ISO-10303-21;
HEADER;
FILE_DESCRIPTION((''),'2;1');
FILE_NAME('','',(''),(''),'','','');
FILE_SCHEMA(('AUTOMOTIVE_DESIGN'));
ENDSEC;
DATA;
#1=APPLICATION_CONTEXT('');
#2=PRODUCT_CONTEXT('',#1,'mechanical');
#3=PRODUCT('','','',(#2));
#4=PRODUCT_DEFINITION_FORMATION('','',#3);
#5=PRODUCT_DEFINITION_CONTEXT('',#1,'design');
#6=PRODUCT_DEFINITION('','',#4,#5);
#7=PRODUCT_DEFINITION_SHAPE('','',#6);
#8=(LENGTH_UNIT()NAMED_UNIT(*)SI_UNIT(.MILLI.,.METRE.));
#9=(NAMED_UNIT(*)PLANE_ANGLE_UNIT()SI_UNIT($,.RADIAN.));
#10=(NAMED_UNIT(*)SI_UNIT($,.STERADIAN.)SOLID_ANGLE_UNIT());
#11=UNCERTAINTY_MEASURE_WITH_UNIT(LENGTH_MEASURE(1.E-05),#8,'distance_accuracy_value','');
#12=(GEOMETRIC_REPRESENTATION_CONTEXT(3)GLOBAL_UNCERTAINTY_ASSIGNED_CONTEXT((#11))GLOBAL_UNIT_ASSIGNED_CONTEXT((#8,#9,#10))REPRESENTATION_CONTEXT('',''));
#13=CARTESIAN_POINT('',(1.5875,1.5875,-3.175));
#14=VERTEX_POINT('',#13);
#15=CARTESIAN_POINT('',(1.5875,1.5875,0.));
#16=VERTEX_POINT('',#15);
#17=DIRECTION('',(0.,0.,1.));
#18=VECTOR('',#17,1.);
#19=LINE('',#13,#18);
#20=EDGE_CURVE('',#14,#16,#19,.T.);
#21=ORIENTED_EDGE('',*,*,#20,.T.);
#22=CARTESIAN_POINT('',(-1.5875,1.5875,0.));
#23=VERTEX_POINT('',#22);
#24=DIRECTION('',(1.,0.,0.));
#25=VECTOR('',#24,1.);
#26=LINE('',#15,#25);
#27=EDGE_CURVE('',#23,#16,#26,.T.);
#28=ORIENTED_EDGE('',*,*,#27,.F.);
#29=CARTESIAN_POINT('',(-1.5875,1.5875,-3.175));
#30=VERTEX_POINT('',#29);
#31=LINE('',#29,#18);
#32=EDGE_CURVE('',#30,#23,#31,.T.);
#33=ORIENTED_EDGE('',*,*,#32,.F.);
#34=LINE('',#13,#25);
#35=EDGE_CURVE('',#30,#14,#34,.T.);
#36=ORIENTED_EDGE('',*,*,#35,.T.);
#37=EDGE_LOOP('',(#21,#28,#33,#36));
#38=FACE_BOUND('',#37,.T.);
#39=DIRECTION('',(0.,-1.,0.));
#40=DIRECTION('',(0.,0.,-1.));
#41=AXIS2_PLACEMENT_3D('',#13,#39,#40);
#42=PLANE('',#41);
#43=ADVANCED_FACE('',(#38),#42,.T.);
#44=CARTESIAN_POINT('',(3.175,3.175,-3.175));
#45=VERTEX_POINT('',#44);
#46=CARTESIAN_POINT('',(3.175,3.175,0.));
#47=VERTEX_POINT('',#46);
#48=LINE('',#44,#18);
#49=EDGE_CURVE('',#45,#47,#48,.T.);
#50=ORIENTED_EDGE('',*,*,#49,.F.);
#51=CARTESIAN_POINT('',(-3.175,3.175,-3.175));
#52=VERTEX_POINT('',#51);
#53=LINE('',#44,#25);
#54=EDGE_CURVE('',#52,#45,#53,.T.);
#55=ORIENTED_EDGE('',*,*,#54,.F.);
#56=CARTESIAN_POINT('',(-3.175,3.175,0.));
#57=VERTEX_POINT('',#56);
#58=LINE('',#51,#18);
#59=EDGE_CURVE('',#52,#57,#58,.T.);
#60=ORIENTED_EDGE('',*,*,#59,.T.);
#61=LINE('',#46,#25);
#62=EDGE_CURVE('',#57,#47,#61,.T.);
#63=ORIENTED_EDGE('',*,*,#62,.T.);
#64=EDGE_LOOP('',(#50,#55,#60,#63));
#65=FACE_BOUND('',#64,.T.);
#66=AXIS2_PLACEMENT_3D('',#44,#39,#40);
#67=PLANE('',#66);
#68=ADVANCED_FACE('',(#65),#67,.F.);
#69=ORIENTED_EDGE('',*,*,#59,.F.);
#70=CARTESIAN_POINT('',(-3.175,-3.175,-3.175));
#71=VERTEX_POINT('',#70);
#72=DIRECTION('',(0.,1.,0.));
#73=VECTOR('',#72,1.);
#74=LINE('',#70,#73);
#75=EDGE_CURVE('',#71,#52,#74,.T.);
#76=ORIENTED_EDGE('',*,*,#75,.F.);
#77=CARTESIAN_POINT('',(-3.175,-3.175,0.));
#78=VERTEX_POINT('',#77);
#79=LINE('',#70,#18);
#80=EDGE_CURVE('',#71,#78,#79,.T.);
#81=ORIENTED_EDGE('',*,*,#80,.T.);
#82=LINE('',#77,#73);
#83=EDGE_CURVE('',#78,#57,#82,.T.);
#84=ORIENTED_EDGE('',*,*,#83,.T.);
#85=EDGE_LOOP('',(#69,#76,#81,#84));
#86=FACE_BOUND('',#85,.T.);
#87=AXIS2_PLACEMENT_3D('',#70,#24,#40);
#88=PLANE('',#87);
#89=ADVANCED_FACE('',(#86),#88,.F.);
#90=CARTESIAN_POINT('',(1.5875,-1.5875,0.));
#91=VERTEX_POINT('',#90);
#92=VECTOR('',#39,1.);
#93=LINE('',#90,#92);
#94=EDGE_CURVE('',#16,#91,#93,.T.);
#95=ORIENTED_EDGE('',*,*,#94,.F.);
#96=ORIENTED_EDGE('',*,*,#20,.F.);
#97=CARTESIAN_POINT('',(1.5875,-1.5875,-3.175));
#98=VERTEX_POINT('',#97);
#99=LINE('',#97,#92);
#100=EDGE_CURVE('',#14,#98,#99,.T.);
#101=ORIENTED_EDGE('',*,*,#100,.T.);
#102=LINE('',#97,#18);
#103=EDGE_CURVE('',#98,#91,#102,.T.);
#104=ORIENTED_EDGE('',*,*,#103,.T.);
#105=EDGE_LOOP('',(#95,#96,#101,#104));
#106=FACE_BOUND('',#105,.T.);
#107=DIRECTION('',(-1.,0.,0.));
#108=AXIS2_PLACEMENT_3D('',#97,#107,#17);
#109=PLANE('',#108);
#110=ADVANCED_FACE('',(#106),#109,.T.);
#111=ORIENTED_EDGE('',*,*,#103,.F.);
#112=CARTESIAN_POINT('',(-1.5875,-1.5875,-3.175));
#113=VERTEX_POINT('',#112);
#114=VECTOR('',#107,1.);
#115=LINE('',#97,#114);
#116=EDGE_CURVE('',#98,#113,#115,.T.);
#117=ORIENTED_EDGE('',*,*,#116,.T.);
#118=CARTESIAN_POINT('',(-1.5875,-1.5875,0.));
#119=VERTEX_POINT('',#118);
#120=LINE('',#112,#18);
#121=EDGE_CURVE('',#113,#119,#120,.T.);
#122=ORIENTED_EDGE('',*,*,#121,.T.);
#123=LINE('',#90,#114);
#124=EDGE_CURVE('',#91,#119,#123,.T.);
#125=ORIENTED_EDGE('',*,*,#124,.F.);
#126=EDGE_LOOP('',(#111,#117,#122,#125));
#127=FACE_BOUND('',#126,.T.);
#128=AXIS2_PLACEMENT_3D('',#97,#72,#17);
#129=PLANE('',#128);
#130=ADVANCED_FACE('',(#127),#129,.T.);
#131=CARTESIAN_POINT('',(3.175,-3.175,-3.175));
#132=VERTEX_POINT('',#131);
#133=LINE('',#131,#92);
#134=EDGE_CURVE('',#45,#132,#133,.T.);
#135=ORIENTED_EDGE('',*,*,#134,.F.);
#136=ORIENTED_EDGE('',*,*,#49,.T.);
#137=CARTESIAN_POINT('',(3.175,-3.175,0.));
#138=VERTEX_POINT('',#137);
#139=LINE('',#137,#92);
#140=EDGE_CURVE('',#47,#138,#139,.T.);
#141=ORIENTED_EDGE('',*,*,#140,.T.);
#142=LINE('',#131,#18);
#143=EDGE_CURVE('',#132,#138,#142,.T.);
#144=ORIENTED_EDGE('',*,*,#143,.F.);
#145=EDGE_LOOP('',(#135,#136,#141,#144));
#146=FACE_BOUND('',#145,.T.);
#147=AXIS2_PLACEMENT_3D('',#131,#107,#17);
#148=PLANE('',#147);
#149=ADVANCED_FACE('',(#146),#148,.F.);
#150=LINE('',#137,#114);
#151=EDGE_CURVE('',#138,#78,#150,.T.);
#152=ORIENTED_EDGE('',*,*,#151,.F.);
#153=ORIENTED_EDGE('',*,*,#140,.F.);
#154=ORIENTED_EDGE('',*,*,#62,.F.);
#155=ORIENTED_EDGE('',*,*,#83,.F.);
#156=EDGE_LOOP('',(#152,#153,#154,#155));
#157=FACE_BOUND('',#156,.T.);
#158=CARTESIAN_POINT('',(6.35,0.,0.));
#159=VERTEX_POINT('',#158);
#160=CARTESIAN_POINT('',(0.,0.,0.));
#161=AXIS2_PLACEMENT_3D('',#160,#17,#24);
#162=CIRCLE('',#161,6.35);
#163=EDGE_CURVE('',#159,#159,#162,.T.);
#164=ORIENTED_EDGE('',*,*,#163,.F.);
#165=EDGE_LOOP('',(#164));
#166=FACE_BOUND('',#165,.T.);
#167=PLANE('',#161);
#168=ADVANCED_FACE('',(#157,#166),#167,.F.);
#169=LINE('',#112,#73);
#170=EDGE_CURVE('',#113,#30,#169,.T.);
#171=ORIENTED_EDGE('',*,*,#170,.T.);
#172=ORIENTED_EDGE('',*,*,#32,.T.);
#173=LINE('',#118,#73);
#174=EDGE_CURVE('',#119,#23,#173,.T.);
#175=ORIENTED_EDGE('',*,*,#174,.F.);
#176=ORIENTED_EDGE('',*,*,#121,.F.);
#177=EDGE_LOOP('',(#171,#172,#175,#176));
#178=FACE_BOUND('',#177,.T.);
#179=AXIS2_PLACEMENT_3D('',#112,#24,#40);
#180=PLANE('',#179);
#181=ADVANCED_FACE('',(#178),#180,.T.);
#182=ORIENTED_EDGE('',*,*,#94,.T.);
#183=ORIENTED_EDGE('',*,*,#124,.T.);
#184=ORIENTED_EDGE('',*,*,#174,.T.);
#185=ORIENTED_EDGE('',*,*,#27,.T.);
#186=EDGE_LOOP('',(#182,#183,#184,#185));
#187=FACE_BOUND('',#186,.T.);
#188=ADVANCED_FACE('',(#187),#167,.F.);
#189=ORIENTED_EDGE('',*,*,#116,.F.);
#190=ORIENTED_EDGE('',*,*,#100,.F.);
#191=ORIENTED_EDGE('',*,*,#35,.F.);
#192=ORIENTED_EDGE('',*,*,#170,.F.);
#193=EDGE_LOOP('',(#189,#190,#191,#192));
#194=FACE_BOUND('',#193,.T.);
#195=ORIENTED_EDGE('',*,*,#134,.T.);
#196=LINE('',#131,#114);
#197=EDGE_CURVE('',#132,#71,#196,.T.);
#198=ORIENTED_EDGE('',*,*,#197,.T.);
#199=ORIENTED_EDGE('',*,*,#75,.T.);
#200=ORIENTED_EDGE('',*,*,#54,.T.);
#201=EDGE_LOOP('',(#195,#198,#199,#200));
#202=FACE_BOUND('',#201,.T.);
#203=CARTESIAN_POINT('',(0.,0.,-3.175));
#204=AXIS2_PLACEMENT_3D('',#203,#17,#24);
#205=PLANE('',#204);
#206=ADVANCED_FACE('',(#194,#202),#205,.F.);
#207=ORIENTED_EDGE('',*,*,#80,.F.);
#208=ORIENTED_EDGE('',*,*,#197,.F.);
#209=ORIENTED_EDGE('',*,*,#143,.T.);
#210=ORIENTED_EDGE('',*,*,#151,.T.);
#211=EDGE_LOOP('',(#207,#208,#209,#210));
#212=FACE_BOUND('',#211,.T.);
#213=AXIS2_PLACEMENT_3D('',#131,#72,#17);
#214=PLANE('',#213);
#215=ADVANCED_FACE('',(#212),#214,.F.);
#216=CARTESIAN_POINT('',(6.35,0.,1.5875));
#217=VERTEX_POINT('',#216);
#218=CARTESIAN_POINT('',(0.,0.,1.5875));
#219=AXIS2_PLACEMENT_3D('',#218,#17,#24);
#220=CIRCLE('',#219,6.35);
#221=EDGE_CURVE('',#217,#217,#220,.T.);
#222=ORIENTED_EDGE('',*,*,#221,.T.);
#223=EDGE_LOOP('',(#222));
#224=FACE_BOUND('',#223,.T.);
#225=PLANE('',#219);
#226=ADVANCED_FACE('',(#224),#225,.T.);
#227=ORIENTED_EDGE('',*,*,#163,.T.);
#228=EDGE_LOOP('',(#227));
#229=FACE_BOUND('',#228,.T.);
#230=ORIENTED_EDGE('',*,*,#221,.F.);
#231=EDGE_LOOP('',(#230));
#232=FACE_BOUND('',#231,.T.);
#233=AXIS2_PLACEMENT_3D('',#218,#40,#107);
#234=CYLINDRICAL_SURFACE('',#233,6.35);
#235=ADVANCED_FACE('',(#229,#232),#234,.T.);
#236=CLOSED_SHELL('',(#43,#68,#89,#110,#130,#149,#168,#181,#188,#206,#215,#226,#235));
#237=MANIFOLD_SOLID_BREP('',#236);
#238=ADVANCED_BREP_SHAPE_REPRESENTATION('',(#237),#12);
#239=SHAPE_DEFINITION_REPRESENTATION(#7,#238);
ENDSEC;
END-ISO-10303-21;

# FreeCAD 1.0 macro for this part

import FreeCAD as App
import Part
import Sketcher
Q = App.Units.Quantity

doc = App.newDocument("Part")
body = doc.addObject("PartDesign::Body", "Body")

sketch1 = doc.addObject("Sketcher::SketchObject", "Sketch")
body.addObject(sketch1)
sketch1.AttachmentSupport = (doc.XY_Plane, [""])
sketch1.MapMode = "FlatFace"
sketch1.addGeometry(Part.Circle(App.Vector(0, 0, 0), App.Vector(0, 0, 1), 6), False)
sketch1.addConstraint([
    Sketcher.Constraint("Coincident", 0, 3, -1, 1),
    Sketcher.Constraint("Diameter", 0, Q("0.5 in")),
])
pad1 = doc.addObject("PartDesign::Pad", "Pad")
body.addObject(pad1)
pad1.Profile = sketch1
pad1.Length = Q("0.0625 in")

sketch2 = doc.addObject("Sketcher::SketchObject", "Sketch001")
body.addObject(sketch2)
sketch2.AttachmentSupport = (doc.XY_Plane, [""])
sketch2.MapMode = "FlatFace"
sketch2.addGeometry([
    Part.LineSegment(App.Vector(3.2, 3.2, 0), App.Vector(3.2, -3.2, 0)),
    Part.LineSegment(App.Vector(3.2, -3.2, 0), App.Vector(-3.2, -3.2, 0)),
    Part.LineSegment(App.Vector(-3.2, -3.2, 0), App.Vector(-3.2, 3.2, 0)),
    Part.LineSegment(App.Vector(-3.2, 3.2, 0), App.Vector(3.2, 3.2, 0)),
    Part.LineSegment(App.Vector(-1.6, -1.6, 0), App.Vector(1.6, -1.6, 0)),
    Part.LineSegment(App.Vector(1.6, -1.6, 0), App.Vector(1.6, 1.6, 0)),
    Part.LineSegment(App.Vector(1.6, 1.6, 0), App.Vector(-1.6, 1.6, 0)),
    Part.LineSegment(App.Vector(-1.6, 1.6, 0), App.Vector(-1.6, -1.6, 0)),
], False)
sketch2.addConstraint([
    Sketcher.Constraint("Coincident", 0, 2, 1, 1),
    Sketcher.Constraint("Coincident", 1, 2, 2, 1),
    Sketcher.Constraint("Coincident", 2, 2, 3, 1),
    Sketcher.Constraint("Coincident", 3, 2, 0, 1),
    Sketcher.Constraint("Coincident", 4, 2, 5, 1),
    Sketcher.Constraint("Coincident", 5, 2, 6, 1),
    Sketcher.Constraint("Coincident", 6, 2, 7, 1),
    Sketcher.Constraint("Coincident", 7, 2, 4, 1),
    Sketcher.Constraint("Vertical", 0),
    Sketcher.Constraint("Horizontal", 1),
    Sketcher.Constraint("Vertical", 2),
    Sketcher.Constraint("Horizontal", 3),
    Sketcher.Constraint("Horizontal", 4),
    Sketcher.Constraint("Vertical", 5),
    Sketcher.Constraint("Horizontal", 6),
    Sketcher.Constraint("Vertical", 7),
    Sketcher.Constraint("Symmetric", 0, 2, 2, 2, -1, 1),
    Sketcher.Constraint("Symmetric", 4, 2, 6, 2, -1, 1),
    Sketcher.Constraint("Equal", 3, 0),
    Sketcher.Constraint("Equal", 6, 5),
    Sketcher.Constraint("DistanceX", 1, 2, 1, 1, Q("0.25 in")),
    Sketcher.Constraint("DistanceX", 4, 1, 4, 2, Q("0.125 in")),
])
pad2 = doc.addObject("PartDesign::Pad", "Pad001")
body.addObject(pad2)
pad2.Profile = sketch2
pad2.Length = Q("0.125 in")
pad2.Reversed = True

doc.recompute()
